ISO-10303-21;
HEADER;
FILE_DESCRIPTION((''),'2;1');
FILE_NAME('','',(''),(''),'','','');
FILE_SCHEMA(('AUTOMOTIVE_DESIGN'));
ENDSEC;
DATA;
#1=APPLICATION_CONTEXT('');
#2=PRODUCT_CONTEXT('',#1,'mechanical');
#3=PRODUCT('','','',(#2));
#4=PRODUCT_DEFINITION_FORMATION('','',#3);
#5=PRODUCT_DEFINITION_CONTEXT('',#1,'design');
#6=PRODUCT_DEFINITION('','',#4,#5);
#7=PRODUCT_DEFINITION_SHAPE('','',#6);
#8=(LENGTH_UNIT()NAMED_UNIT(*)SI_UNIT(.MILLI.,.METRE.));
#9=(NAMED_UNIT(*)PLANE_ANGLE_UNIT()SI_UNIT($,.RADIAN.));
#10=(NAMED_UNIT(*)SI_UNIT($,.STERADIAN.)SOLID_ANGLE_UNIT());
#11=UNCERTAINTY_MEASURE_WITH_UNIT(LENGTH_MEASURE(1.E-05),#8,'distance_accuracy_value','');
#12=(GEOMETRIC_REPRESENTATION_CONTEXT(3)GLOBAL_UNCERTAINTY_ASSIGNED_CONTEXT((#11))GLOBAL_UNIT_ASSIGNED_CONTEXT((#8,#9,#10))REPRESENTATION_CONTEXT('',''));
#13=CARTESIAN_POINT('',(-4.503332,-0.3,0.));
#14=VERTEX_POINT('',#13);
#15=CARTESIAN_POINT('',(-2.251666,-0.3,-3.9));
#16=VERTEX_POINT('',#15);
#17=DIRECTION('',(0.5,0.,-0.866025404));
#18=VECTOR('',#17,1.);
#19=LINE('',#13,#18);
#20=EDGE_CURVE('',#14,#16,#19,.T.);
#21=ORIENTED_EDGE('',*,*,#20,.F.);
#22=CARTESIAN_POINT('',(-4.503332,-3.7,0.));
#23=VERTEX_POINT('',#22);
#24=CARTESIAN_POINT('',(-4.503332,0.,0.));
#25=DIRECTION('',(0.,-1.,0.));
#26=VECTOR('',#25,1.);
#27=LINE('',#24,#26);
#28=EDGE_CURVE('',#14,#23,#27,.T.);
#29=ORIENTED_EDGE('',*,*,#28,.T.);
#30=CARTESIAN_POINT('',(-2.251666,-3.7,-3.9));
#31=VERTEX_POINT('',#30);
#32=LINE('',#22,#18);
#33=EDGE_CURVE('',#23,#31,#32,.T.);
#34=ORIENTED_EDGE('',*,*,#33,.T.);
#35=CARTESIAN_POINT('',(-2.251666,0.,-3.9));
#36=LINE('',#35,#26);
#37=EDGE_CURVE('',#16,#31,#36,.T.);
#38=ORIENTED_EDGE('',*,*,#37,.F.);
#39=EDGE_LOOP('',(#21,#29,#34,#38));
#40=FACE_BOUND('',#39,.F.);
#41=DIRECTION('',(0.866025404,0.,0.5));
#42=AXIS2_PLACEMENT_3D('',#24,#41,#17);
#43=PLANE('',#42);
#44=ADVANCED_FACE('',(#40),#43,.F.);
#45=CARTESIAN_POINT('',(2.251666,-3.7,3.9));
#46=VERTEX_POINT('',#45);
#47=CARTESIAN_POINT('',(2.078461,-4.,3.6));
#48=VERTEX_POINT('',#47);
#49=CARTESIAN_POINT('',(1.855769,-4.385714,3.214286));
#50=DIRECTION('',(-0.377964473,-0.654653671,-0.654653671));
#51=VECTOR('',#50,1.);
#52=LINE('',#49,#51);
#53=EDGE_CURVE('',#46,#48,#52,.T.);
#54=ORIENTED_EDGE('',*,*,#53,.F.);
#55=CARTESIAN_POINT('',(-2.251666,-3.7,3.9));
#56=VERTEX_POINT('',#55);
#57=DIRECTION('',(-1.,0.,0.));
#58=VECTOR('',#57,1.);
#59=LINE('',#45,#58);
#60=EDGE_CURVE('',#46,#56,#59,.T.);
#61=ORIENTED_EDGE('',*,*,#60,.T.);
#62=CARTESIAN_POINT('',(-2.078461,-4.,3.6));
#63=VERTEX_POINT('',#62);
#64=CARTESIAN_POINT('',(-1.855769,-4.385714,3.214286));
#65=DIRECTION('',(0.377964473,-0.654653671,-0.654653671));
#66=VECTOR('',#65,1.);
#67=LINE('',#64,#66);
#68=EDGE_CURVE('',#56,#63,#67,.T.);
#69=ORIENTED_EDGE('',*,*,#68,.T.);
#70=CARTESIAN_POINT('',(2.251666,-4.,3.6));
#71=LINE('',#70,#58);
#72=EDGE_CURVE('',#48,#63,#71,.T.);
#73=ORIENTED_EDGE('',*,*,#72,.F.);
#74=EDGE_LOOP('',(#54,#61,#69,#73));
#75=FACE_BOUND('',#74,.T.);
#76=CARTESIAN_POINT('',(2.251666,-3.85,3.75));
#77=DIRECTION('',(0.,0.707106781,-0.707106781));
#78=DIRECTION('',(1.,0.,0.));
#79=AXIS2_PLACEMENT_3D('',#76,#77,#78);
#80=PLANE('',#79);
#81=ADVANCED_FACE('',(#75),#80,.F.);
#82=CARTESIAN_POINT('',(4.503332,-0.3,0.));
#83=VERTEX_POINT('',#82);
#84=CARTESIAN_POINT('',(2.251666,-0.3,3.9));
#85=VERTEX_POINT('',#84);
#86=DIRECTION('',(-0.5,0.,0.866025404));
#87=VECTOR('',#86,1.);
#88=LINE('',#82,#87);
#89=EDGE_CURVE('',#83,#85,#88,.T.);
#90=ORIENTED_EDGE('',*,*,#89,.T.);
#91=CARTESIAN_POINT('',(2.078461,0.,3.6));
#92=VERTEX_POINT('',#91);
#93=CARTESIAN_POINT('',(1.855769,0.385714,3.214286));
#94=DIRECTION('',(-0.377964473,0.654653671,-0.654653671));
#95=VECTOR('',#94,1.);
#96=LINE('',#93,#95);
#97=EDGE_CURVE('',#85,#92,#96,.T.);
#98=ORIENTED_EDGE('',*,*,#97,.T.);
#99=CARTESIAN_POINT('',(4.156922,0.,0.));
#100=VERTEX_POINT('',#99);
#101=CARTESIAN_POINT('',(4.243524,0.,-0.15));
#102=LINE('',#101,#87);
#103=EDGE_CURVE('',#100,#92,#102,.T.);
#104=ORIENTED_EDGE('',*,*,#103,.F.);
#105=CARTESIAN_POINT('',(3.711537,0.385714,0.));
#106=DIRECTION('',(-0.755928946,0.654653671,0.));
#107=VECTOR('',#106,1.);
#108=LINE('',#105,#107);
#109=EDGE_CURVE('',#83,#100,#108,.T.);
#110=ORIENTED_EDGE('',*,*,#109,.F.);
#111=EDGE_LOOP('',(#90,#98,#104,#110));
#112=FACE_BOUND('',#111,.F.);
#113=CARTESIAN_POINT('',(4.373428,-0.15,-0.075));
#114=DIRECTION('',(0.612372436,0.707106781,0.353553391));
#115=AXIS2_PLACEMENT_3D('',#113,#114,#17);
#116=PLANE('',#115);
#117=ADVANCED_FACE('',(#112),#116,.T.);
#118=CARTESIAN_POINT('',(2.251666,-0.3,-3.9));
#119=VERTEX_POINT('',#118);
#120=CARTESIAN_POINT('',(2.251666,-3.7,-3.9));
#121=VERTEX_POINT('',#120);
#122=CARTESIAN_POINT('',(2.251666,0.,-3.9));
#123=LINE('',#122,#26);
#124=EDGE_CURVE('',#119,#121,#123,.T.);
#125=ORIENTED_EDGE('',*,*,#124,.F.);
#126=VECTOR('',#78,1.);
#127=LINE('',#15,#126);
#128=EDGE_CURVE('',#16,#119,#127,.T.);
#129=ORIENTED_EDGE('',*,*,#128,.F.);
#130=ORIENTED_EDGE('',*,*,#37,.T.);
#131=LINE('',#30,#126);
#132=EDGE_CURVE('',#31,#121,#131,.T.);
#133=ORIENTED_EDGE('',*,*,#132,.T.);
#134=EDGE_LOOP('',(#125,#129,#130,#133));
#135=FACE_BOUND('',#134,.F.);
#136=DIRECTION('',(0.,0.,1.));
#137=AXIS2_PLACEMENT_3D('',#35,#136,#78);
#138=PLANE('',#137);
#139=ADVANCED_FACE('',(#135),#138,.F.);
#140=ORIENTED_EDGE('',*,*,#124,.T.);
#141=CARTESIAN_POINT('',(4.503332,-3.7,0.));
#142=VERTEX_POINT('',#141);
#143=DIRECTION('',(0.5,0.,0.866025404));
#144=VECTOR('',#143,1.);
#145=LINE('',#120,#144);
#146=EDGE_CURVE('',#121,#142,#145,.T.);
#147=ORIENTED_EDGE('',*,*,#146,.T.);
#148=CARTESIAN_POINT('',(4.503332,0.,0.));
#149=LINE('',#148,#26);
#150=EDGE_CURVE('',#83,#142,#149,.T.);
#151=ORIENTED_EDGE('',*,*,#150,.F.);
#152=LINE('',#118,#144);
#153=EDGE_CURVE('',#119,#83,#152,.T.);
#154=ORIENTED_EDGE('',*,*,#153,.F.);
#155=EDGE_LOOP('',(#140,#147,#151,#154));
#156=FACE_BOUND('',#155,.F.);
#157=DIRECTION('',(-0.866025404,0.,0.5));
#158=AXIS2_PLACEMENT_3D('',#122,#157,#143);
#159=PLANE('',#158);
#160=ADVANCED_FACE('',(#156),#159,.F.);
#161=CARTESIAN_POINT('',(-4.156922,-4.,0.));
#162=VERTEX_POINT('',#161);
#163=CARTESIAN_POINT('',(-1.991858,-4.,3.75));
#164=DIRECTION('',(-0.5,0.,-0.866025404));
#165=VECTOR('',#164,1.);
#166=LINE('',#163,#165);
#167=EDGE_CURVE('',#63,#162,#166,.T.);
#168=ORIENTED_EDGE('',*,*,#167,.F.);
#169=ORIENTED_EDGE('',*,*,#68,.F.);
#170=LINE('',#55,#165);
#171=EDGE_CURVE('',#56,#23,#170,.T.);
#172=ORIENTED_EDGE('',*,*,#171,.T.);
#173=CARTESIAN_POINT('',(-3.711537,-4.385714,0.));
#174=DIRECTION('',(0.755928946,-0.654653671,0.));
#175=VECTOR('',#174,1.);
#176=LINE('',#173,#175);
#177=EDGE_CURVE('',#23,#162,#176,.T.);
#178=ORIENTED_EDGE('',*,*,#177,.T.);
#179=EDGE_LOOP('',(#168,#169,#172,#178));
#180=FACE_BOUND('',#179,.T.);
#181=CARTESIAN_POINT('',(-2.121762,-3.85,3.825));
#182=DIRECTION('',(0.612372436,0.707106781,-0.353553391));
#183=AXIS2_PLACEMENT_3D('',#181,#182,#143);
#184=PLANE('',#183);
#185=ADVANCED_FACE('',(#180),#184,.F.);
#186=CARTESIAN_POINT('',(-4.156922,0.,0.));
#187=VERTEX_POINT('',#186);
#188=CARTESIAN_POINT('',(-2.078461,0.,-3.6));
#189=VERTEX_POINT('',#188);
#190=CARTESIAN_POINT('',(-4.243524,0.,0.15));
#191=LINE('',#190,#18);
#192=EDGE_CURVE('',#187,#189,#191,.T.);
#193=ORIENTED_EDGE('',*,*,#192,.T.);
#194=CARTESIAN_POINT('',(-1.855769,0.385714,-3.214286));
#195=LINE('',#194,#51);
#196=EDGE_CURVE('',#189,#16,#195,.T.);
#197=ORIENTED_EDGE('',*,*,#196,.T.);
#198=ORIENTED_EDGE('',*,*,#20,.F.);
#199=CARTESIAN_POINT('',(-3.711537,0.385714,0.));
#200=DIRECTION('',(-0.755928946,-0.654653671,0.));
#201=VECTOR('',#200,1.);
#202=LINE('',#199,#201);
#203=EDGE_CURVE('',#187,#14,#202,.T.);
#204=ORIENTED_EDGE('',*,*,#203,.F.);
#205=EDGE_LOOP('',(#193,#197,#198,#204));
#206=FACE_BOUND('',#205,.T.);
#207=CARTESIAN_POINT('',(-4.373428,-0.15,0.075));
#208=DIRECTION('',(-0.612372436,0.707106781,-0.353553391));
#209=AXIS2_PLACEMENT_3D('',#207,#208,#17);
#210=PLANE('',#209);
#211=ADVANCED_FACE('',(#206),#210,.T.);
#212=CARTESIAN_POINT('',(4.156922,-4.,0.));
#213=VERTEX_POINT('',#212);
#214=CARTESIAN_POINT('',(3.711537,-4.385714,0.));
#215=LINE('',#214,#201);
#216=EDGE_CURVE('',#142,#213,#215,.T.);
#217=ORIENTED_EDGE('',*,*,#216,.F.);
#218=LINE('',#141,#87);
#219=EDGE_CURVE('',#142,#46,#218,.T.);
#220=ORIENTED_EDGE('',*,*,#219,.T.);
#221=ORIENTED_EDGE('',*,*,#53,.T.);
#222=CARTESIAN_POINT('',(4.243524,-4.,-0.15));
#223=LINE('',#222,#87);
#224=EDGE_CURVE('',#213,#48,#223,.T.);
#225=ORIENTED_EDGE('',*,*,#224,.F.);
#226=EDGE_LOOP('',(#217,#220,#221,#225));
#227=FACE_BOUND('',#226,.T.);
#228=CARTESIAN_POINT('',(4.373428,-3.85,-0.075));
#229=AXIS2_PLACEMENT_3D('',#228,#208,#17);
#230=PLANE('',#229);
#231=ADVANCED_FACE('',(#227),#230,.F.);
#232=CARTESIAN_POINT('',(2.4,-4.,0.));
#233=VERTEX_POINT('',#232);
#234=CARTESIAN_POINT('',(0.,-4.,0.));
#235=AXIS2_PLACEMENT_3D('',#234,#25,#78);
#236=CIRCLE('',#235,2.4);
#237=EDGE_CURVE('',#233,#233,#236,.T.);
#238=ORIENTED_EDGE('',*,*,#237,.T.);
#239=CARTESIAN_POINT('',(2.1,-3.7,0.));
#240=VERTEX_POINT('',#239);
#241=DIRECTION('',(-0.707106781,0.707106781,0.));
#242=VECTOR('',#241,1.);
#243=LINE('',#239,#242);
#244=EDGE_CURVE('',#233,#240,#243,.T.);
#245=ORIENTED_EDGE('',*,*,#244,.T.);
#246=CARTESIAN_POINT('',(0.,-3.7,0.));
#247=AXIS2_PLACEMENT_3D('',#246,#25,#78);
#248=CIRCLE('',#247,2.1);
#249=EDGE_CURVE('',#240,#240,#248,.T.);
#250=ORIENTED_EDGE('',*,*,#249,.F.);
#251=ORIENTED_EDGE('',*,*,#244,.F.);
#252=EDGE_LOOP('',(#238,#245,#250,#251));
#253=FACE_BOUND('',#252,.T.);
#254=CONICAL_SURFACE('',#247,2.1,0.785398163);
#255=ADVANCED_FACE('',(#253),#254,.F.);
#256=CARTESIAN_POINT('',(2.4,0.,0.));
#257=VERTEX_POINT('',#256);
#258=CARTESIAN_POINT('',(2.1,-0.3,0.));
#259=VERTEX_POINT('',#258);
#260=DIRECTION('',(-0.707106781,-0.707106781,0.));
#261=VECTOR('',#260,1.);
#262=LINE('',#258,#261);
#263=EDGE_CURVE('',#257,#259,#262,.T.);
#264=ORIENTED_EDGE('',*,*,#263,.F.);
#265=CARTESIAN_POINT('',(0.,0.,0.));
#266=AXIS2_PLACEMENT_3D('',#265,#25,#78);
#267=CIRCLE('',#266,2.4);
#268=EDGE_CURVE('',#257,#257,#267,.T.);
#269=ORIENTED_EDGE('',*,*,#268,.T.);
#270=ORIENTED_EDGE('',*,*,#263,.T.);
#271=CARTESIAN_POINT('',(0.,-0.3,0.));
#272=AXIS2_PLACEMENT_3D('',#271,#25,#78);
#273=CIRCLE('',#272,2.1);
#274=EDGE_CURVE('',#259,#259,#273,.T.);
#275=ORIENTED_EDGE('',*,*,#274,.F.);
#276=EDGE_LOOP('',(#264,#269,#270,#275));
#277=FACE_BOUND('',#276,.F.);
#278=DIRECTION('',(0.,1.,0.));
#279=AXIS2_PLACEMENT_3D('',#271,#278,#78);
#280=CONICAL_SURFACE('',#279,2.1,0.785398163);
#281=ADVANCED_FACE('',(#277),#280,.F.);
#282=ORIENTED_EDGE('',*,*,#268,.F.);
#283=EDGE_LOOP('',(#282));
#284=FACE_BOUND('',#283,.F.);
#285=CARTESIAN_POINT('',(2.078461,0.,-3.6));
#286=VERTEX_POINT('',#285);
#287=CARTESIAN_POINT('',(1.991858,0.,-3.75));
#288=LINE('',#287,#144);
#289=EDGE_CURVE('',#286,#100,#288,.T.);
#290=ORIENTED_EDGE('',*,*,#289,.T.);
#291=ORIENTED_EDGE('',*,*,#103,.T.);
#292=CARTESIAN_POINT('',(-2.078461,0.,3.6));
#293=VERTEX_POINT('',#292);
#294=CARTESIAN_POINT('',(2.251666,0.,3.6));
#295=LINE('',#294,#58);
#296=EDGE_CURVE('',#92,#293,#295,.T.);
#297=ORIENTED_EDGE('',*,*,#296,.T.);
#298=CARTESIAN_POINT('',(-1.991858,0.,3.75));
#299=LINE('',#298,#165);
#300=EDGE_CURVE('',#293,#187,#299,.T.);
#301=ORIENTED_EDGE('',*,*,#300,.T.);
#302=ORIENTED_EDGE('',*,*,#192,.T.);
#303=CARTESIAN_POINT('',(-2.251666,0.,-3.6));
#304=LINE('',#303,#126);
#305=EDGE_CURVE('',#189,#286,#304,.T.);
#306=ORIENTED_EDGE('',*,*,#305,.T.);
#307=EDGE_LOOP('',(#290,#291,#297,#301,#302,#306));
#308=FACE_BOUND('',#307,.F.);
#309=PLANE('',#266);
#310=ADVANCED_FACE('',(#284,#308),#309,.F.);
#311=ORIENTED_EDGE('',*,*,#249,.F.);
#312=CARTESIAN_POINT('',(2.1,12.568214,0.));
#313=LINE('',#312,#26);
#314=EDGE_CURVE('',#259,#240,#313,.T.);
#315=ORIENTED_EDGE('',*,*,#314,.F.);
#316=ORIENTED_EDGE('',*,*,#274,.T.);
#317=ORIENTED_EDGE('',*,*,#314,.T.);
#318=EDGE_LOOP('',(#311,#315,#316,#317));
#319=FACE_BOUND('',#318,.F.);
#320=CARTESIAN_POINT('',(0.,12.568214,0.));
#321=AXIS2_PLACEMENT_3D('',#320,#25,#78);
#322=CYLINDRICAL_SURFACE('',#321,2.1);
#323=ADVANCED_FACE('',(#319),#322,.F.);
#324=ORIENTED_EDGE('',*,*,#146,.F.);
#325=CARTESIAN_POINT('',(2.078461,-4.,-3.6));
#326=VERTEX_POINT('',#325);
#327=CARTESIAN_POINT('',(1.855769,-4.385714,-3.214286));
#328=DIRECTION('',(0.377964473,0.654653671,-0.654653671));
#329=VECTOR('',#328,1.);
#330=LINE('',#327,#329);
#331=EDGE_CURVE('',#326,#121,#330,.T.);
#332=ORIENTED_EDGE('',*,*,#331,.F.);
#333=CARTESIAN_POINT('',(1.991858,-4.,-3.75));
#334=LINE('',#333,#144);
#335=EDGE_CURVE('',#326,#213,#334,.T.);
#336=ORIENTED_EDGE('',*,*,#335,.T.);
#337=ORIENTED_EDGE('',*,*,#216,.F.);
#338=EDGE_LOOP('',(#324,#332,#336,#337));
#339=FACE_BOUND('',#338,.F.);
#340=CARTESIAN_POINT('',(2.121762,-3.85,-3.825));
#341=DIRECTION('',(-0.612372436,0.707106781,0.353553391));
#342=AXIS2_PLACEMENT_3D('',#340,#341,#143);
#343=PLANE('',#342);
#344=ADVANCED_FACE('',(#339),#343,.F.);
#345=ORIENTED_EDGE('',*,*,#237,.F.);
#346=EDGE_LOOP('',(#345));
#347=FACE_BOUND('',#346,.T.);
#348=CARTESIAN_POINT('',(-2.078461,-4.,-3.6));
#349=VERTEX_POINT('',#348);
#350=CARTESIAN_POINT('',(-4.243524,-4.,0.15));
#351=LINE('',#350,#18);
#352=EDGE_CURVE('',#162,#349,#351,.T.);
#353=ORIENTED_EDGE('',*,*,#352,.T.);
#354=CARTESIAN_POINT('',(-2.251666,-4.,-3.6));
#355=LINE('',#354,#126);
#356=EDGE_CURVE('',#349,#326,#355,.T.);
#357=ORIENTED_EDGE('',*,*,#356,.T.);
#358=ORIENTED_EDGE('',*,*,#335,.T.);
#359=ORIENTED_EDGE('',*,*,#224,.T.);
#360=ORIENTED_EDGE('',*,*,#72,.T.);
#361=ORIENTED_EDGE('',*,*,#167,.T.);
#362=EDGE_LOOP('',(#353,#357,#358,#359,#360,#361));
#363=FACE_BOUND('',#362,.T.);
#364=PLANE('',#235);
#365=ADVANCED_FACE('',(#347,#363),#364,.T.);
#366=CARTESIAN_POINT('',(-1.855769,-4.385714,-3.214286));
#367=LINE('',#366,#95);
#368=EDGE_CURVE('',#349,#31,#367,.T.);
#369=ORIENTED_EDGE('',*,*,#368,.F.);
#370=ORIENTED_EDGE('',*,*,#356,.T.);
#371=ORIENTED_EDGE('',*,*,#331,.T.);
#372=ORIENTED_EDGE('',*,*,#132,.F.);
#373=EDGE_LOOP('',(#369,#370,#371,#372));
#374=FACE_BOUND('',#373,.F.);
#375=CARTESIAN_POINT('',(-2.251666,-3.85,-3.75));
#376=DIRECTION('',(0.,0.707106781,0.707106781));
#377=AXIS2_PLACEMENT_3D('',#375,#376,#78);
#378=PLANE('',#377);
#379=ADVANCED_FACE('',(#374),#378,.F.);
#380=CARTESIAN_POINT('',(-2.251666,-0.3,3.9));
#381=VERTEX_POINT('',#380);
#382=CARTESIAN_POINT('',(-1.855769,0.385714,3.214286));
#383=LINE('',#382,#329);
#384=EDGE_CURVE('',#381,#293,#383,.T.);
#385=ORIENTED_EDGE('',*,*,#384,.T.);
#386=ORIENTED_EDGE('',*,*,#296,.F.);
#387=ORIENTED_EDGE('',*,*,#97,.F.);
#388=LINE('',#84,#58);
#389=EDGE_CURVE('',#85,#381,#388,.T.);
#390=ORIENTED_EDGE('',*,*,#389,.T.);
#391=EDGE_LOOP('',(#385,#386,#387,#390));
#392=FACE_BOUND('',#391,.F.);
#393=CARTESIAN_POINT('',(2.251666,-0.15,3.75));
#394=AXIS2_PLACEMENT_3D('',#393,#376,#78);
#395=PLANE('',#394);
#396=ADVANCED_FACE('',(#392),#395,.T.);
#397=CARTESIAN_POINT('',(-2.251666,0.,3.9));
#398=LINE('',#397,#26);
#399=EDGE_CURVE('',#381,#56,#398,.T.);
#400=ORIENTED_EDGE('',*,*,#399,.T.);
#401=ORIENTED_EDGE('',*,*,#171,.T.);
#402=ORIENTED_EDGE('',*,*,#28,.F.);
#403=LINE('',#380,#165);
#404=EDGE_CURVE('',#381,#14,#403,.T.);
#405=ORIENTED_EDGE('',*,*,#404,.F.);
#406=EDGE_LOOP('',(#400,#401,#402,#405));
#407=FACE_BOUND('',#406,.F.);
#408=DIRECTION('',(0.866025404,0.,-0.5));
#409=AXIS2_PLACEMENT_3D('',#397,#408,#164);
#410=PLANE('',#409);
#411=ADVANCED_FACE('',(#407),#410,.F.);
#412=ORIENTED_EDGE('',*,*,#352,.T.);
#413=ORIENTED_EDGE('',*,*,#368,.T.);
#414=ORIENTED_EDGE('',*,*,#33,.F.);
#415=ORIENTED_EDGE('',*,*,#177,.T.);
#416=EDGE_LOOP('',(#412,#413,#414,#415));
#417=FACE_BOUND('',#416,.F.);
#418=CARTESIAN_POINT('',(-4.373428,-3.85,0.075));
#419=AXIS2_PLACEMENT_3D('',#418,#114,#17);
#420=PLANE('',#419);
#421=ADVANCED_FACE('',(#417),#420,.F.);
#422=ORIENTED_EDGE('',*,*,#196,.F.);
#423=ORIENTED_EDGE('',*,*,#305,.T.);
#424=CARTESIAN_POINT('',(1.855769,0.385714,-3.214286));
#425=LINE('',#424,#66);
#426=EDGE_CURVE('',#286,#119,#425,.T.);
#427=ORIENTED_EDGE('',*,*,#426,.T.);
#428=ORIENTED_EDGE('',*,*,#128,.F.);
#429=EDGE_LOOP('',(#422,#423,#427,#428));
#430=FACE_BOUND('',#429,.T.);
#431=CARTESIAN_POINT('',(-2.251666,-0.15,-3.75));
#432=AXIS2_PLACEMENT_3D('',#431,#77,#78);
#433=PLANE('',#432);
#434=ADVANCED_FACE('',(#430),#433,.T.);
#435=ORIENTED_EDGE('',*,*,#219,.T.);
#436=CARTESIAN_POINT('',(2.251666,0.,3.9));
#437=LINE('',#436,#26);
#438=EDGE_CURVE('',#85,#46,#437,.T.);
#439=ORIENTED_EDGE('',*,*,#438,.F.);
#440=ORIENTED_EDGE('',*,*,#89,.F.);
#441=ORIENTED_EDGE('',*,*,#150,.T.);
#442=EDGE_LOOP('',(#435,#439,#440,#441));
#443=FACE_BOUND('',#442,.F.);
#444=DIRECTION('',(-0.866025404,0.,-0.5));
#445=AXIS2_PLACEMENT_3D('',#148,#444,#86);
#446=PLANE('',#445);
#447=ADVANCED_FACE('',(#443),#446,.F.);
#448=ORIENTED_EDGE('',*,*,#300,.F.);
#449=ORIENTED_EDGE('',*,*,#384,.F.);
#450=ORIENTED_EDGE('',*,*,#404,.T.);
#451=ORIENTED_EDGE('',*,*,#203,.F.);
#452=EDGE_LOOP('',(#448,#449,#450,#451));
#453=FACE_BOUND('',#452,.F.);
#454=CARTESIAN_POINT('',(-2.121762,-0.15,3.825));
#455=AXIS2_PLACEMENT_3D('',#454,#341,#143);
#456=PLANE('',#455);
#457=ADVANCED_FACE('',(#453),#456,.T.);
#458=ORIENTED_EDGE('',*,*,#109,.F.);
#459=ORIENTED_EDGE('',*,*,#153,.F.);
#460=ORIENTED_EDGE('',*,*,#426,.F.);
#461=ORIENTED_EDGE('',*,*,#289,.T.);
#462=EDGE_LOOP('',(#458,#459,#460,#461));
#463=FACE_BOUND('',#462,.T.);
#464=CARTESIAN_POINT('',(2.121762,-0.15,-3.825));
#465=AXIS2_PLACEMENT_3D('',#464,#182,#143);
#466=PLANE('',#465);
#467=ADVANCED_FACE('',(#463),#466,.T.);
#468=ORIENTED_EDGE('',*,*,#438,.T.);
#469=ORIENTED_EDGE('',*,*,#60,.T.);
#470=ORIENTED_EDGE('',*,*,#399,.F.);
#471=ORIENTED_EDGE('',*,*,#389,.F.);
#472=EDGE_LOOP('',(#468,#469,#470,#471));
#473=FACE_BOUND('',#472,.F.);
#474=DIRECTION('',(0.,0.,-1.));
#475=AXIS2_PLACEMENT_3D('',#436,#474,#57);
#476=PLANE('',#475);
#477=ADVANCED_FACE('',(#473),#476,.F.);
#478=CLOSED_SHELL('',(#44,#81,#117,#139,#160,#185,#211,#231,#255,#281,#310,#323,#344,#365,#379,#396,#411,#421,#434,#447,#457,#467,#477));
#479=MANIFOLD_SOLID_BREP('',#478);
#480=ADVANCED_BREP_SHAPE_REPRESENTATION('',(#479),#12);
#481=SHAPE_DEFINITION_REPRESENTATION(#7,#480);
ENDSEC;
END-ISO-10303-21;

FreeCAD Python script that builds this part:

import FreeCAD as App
import Part
import Sketcher

V = App.Vector
Q = App.Units.Quantity


def edges_at(feature, points):
    """Names of the edges that pass closest to the given points."""
    edges = feature.Shape.Edges
    near = lambda p: min(range(len(edges)), key=lambda i: edges[i].distToShape(Part.Vertex(*p))[0])
    return sorted({f"Edge{near(p) + 1}" for p in points})


def add_polygon(sketch, points):
    """Adds a closed chain of lines whose ends are joined by coincident constraints."""
    first, n = sketch.GeometryCount, len(points)
    for a, b in zip(points, points[1:] + points[:1]):
        sketch.addGeometry(Part.LineSegment(App.Vector(*a, 0), App.Vector(*b, 0)), False)
    for i in range(n):
        sketch.addConstraint(Sketcher.Constraint("Coincident", first + i, 2, first + (i + 1) % n, 1))

doc = App.newDocument("Part")
body = doc.addObject("PartDesign::Body", "Body")

# Sketch on XZ plane
sketch1 = body.newObject("Sketcher::SketchObject", "Sketch")
sketch1.AttachmentSupport = (doc.getObject("XZ_Plane"), [""])
sketch1.MapMode = "FlatFace"
add_polygon(sketch1, [(2.251666, 3.9), (-2.251666, 3.9), (-4.503332, 0), (-2.251666, -3.9), (2.251666, -3.9), (4.503332, 0)])  # lines 0-5
sketch1.addConstraint([
    Sketcher.Constraint("Horizontal", 0),
    Sketcher.Constraint("Horizontal", 3),
    Sketcher.Constraint("Symmetric", 0, 2, 3, 2, -1, 1),
    Sketcher.Constraint("Symmetric", 1, 2, 4, 2, -1, 1),
    Sketcher.Constraint("PointOnObject", 1, 2, -1),
    Sketcher.Constraint("Parallel", 2, 5),
    Sketcher.Constraint("Vertical", 0, 2, 2, 2),
    Sketcher.Constraint("Angle", 1, Q("-120 deg")),
    Sketcher.Constraint("DistanceY", -1, 1, 0, 2, Q("3.9 mm")),
    Sketcher.Constraint("DistanceX", 1, 2, 3, 2, Q("6.754998 mm")),
])
pad1 = body.newObject("PartDesign::Pad", "Pad")
pad1.Profile = sketch1
pad1.Length = 4

# Sketch on XZ plane
sketch2 = body.newObject("Sketcher::SketchObject", "Sketch001")
sketch2.AttachmentSupport = (doc.getObject("XZ_Plane"), [""])
sketch2.MapMode = "FlatFace"
sketch2.addGeometry(Part.Circle(V(0, 0, 0), V(0, 0, 1), 2.1), False)
sketch2.addConstraint([
    Sketcher.Constraint("Coincident", 0, 3, -1, 1),
    Sketcher.Constraint("Diameter", 0, Q("4.2 mm")),
])
doc.recompute()
hole = body.newObject("PartDesign::Hole", "Hole")
hole.Profile = sketch2
hole.ThreadType = "None"
hole.Diameter = 4.2
hole.DepthType = "ThroughAll"
hole.Reversed = True
doc.recompute()

chamfer = body.newObject("PartDesign::Chamfer", "Chamfer")
chamfer.Base = (hole, edges_at(hole, [
    (0, 0, -3.9),
    (-3.377, 0, -1.95),
    (0, 0, 3.9),
    (-3.377, 0, 1.95),
    (3.377, 0, 1.95),
    (3.377, 0, -1.95),
    (-2.1, 0, 0),
    (3.377, -4, 1.95),
    (3.377, -4, -1.95),
    (0, -4, 3.9),
    (0, -4, -3.9),
    (-3.377, -4, 1.95),
    (-3.377, -4, -1.95),
    (-2.1, -4, 0),
]))
chamfer.Size = 0.3

doc.recompute()
